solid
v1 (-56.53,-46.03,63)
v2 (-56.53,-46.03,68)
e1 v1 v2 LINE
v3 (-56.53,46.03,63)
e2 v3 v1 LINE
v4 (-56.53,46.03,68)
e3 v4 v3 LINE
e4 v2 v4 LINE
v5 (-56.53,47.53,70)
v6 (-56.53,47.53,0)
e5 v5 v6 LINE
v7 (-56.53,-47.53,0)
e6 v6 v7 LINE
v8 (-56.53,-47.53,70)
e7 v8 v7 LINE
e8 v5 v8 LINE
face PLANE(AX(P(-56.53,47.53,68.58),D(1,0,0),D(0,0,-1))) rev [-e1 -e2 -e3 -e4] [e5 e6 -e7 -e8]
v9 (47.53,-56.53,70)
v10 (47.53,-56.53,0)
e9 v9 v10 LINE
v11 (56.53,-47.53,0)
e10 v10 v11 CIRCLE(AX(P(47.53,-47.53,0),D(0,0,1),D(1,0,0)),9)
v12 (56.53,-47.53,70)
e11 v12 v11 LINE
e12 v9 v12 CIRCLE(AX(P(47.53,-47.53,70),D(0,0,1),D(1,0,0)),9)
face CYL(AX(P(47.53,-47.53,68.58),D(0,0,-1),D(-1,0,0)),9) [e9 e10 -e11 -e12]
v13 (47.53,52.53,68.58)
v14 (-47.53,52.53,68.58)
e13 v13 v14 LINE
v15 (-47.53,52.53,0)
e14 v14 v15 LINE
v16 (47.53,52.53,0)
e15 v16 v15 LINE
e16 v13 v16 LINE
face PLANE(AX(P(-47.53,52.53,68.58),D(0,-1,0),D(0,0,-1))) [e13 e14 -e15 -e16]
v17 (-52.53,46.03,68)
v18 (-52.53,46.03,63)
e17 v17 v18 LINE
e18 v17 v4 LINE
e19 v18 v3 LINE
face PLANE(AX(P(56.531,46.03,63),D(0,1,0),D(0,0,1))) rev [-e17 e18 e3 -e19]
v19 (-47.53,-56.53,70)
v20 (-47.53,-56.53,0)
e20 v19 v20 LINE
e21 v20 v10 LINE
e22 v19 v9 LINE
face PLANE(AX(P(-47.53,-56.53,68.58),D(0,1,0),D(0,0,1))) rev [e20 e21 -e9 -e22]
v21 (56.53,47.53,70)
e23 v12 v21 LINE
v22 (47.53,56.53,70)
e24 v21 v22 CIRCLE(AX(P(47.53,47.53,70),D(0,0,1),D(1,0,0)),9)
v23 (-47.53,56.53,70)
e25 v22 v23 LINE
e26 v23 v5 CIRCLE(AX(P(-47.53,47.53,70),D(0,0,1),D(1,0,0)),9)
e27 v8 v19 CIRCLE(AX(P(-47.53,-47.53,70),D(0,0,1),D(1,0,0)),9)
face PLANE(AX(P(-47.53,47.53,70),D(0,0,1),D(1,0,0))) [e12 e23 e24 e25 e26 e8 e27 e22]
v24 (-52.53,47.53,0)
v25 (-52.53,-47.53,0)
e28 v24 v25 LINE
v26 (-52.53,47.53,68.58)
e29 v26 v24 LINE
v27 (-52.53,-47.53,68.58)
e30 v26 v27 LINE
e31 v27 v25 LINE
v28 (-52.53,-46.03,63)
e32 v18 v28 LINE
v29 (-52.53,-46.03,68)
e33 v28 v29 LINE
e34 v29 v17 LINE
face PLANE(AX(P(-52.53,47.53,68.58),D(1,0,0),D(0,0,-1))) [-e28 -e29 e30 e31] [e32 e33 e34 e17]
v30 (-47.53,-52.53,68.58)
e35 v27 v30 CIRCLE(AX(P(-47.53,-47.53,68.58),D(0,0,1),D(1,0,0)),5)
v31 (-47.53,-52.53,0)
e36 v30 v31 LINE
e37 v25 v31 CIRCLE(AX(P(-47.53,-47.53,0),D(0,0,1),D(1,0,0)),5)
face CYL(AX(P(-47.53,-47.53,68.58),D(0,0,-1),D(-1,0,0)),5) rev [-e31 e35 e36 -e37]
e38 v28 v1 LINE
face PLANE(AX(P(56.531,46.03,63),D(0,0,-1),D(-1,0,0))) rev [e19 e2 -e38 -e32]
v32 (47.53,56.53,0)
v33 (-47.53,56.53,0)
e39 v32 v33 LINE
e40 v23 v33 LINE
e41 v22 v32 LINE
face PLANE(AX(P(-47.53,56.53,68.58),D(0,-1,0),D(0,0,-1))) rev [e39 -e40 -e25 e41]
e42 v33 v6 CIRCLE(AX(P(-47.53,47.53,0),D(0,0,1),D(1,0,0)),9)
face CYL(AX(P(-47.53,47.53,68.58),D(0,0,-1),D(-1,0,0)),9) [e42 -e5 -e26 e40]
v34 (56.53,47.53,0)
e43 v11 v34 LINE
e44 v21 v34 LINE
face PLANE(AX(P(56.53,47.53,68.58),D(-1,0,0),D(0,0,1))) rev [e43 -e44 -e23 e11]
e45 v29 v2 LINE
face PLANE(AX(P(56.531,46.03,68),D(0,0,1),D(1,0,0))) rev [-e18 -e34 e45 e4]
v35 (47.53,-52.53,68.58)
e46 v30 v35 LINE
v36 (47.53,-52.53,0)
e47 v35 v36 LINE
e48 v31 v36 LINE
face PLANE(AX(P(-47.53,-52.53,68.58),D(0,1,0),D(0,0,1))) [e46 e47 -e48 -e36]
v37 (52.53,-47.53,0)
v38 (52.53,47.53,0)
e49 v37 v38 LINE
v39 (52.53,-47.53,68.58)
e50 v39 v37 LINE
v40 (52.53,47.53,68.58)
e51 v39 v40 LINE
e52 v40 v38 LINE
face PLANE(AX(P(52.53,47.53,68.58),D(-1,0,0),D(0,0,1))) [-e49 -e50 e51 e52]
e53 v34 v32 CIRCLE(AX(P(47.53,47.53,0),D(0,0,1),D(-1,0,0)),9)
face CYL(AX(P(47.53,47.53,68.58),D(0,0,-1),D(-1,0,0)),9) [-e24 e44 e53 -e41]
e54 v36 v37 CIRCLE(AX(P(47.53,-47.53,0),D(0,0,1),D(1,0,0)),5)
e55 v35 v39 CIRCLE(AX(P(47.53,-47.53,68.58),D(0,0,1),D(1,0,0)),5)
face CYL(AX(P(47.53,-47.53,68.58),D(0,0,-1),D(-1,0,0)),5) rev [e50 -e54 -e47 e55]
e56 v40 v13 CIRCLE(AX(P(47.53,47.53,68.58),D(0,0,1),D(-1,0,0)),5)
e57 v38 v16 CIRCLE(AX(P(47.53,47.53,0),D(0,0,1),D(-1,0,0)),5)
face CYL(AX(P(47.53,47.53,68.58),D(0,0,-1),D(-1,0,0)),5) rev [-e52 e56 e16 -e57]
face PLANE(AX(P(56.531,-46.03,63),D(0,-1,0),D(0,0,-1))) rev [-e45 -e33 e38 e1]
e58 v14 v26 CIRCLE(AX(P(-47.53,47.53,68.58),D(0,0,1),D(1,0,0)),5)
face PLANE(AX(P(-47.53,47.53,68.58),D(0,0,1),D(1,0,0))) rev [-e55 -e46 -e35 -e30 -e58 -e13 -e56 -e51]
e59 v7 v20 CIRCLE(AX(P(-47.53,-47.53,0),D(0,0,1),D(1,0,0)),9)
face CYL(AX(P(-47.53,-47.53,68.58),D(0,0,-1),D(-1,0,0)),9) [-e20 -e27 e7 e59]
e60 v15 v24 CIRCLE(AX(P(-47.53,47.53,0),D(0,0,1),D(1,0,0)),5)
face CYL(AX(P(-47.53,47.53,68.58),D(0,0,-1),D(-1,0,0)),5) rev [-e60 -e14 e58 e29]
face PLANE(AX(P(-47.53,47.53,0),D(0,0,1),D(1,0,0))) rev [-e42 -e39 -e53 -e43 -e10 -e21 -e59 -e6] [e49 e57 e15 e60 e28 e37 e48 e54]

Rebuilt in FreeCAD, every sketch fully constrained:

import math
import FreeCAD as App
import Part
import Sketcher


def add_polygon(sketch, points):
    """Adds a closed chain of lines whose ends are joined by coincident constraints."""
    first, n = sketch.GeometryCount, len(points)
    for a, b in zip(points, points[1:] + points[:1]):
        sketch.addGeometry(Part.LineSegment(App.Vector(*a, 0), App.Vector(*b, 0)), False)
    for i in range(n):
        sketch.addConstraint(Sketcher.Constraint("Coincident", first + i, 2, first + (i + 1) % n, 1))

doc = App.newDocument("Part")
params = doc.addObject("Spreadsheet::Sheet", "Params")
for row, (alias, value) in enumerate([
    ("sketch1_radius", "9 mm"),
    ("sketch1_radius2", "5 mm"),
    ("sketch1_width", "95.06 mm"),
    ("pad1_length", "68.58 mm"),
    ("sketch2_radius", "9 mm"),
    ("sketch2_width", "95.06 mm"),
    ("pad2_length", "1.42 mm"),
    ("sketch3_height", "5 mm"),
    ("sketch3_width", "92.06 mm"),
], start=1):
    params.set(f"A{row}", alias)
    params.set(f"B{row}", "=" + value)
    params.setAlias(f"B{row}", alias)

body = doc.addObject("PartDesign::Body", "Body")

sketch1 = body.newObject("Sketcher::SketchObject", "Sketch")
sketch1.AttachmentSupport = (doc.getObject("XY_Plane"), [""])
sketch1.MapMode = "FlatFace"
sketch1.addGeometry([
    Part.LineSegment(App.Vector(48, 57, 0), App.Vector(-48, 57, 0)),
    Part.ArcOfCircle(Part.Circle(App.Vector(-48, 48, 0), App.Vector(0, 0, 1), 9), math.radians(90), math.radians(180)),
    Part.LineSegment(App.Vector(-57, 48, 0), App.Vector(-57, -48, 0)),
    Part.ArcOfCircle(Part.Circle(App.Vector(-48, -48, 0), App.Vector(0, 0, 1), 9), math.radians(180), math.radians(270)),
    Part.LineSegment(App.Vector(-48, -57, 0), App.Vector(48, -57, 0)),
    Part.ArcOfCircle(Part.Circle(App.Vector(48, -48, 0), App.Vector(0, 0, 1), 9), math.radians(-90), math.radians(0)),
    Part.LineSegment(App.Vector(57, -48, 0), App.Vector(57, 48, 0)),
    Part.ArcOfCircle(Part.Circle(App.Vector(48, 48, 0), App.Vector(0, 0, 1), 9), math.radians(0), math.radians(90)),
    Part.LineSegment(App.Vector(-48, 53, 0), App.Vector(48, 53, 0)),
    Part.ArcOfCircle(Part.Circle(App.Vector(48, 48, 0), App.Vector(0, 0, 1), 5), math.radians(0), math.radians(90)),
    Part.LineSegment(App.Vector(53, 48, 0), App.Vector(53, -48, 0)),
    Part.ArcOfCircle(Part.Circle(App.Vector(48, -48, 0), App.Vector(0, 0, 1), 5), math.radians(-90), math.radians(0)),
    Part.LineSegment(App.Vector(48, -53, 0), App.Vector(-48, -53, 0)),
    Part.ArcOfCircle(Part.Circle(App.Vector(-48, -48, 0), App.Vector(0, 0, 1), 5), math.radians(180), math.radians(270)),
    Part.LineSegment(App.Vector(-53, -48, 0), App.Vector(-53, 48, 0)),
    Part.ArcOfCircle(Part.Circle(App.Vector(-48, 48, 0), App.Vector(0, 0, 1), 5), math.radians(90), math.radians(180)),
], False)
sketch1.addConstraint([
    Sketcher.Constraint("Tangent", 0, 2, 1, 1),
    Sketcher.Constraint("Tangent", 1, 2, 2, 1),
    Sketcher.Constraint("Tangent", 2, 2, 3, 1),
    Sketcher.Constraint("Tangent", 3, 2, 4, 1),
    Sketcher.Constraint("Tangent", 4, 2, 5, 1),
    Sketcher.Constraint("Tangent", 5, 2, 6, 1),
    Sketcher.Constraint("Tangent", 6, 2, 7, 1),
    Sketcher.Constraint("Tangent", 7, 2, 0, 1),
    Sketcher.Constraint("Tangent", 8, 2, 9, 2),
    Sketcher.Constraint("Tangent", 9, 1, 10, 1),
    Sketcher.Constraint("Tangent", 10, 2, 11, 2),
    Sketcher.Constraint("Tangent", 11, 1, 12, 1),
    Sketcher.Constraint("Tangent", 12, 2, 13, 2),
    Sketcher.Constraint("Tangent", 13, 1, 14, 1),
    Sketcher.Constraint("Tangent", 14, 2, 15, 2),
    Sketcher.Constraint("Tangent", 15, 1, 8, 1),
    Sketcher.Constraint("Horizontal", 0),
    Sketcher.Constraint("Vertical", 2),
    Sketcher.Constraint("Horizontal", 4),
    Sketcher.Constraint("Vertical", 6),
    Sketcher.Constraint("Horizontal", 8),
    Sketcher.Constraint("Vertical", 10),
    Sketcher.Constraint("Horizontal", 12),
    Sketcher.Constraint("Vertical", 14),
    Sketcher.Constraint("Coincident", 9, 3, 7, 3),
    Sketcher.Constraint("Coincident", 11, 3, 5, 3),
    Sketcher.Constraint("Coincident", 13, 3, 3, 3),
    Sketcher.Constraint("Equal", 1, 3),
    Sketcher.Constraint("Equal", 3, 5),
    Sketcher.Constraint("Equal", 5, 7),
    Sketcher.Constraint("Equal", 13, 15),
    Sketcher.Constraint("Symmetric", 1, 3, 5, 3, -1, 1),
    Sketcher.Constraint("Equal", 12, 2),
    Sketcher.Constraint("Radius", 1, 9.0),
    Sketcher.Constraint("Radius", 9, 5.0),
    Sketcher.Constraint("DistanceX", 0, 2, 0, 1, 95.06),
])
sketch1.setExpression("Constraints[33]", "Params.sketch1_radius")
sketch1.setExpression("Constraints[34]", "Params.sketch1_radius2")
sketch1.setExpression("Constraints[35]", "Params.sketch1_width")
pad1 = body.newObject("PartDesign::Pad", "Pad")
pad1.Profile = sketch1
pad1.setExpression("Length", "Params.pad1_length")

sketch2 = body.newObject("Sketcher::SketchObject", "Sketch001")
sketch2.AttachmentSupport = (doc.getObject("XY_Plane"), [""])
sketch2.MapMode = "FlatFace"
sketch2.AttachmentOffset = App.Placement(App.Vector(0, 0, 68.58), App.Rotation())
sketch2.addGeometry([
    Part.LineSegment(App.Vector(-57, 48, 0), App.Vector(-57, -48, 0)),
    Part.ArcOfCircle(Part.Circle(App.Vector(-48, -48, 0), App.Vector(0, 0, 1), 9), math.radians(180), math.radians(270)),
    Part.LineSegment(App.Vector(-48, -57, 0), App.Vector(48, -57, 0)),
    Part.ArcOfCircle(Part.Circle(App.Vector(48, -48, 0), App.Vector(0, 0, 1), 9), math.radians(-90), math.radians(0)),
    Part.LineSegment(App.Vector(57, -48, 0), App.Vector(57, 48, 0)),
    Part.ArcOfCircle(Part.Circle(App.Vector(48, 48, 0), App.Vector(0, 0, 1), 9), math.radians(0), math.radians(90)),
    Part.LineSegment(App.Vector(48, 57, 0), App.Vector(-48, 57, 0)),
    Part.ArcOfCircle(Part.Circle(App.Vector(-48, 48, 0), App.Vector(0, 0, 1), 9), math.radians(90), math.radians(180)),
], False)
sketch2.addConstraint([
    Sketcher.Constraint("Tangent", 0, 2, 1, 1),
    Sketcher.Constraint("Tangent", 1, 2, 2, 1),
    Sketcher.Constraint("Tangent", 2, 2, 3, 1),
    Sketcher.Constraint("Tangent", 3, 2, 4, 1),
    Sketcher.Constraint("Tangent", 4, 2, 5, 1),
    Sketcher.Constraint("Tangent", 5, 2, 6, 1),
    Sketcher.Constraint("Tangent", 6, 2, 7, 1),
    Sketcher.Constraint("Tangent", 7, 2, 0, 1),
    Sketcher.Constraint("Vertical", 0),
    Sketcher.Constraint("Horizontal", 2),
    Sketcher.Constraint("Vertical", 4),
    Sketcher.Constraint("Horizontal", 6),
    Sketcher.Constraint("Equal", 1, 3),
    Sketcher.Constraint("Equal", 3, 5),
    Sketcher.Constraint("Equal", 5, 7),
    Sketcher.Constraint("Symmetric", 1, 3, 5, 3, -1, 1),
    Sketcher.Constraint("Equal", 6, 0),
    Sketcher.Constraint("Radius", 1, 9.0),
    Sketcher.Constraint("DistanceX", 2, 1, 2, 2, 95.06),
])
sketch2.setExpression("Constraints[17]", "Params.sketch2_radius")
sketch2.setExpression("Constraints[18]", "Params.sketch2_width")
pad2 = body.newObject("PartDesign::Pad", "Pad001")
pad2.Profile = sketch2
pad2.setExpression("Length", "Params.pad2_length")

sketch3 = body.newObject("Sketcher::SketchObject", "Sketch002")
sketch3.AttachmentSupport = (doc.getObject("YZ_Plane"), [""])
sketch3.MapMode = "FlatFace"
sketch3.AttachmentOffset = App.Placement(App.Vector(0, 0, -56.53), App.Rotation())
add_polygon(sketch3, [(46, 63), (-46, 63), (-46, 68), (46, 68)])
sketch3.addConstraint([
    Sketcher.Constraint("Horizontal", 0),
    Sketcher.Constraint("Vertical", 1),
    Sketcher.Constraint("Horizontal", 2),
    Sketcher.Constraint("Vertical", 3),
    Sketcher.Constraint("DistanceY", 1, 1, 1, 2, 5.0),
    Sketcher.Constraint("DistanceY", -1, 1, 0, 2, 63.0),
    Sketcher.Constraint("DistanceX", 0, 2, 0, 1, 92.06),
    Sketcher.Constraint("DistanceX", 0, 2, -1, 1, 46.03),
])
sketch3.setExpression("Constraints[8]", "Params.sketch3_height")
sketch3.setExpression("Constraints[10]", "Params.sketch3_width")
pocket1 = body.newObject("PartDesign::Pocket", "Pocket")
pocket1.Profile = sketch3
pocket1.Type = "UpToFirst"
pocket1.Reversed = True

doc.recompute()
